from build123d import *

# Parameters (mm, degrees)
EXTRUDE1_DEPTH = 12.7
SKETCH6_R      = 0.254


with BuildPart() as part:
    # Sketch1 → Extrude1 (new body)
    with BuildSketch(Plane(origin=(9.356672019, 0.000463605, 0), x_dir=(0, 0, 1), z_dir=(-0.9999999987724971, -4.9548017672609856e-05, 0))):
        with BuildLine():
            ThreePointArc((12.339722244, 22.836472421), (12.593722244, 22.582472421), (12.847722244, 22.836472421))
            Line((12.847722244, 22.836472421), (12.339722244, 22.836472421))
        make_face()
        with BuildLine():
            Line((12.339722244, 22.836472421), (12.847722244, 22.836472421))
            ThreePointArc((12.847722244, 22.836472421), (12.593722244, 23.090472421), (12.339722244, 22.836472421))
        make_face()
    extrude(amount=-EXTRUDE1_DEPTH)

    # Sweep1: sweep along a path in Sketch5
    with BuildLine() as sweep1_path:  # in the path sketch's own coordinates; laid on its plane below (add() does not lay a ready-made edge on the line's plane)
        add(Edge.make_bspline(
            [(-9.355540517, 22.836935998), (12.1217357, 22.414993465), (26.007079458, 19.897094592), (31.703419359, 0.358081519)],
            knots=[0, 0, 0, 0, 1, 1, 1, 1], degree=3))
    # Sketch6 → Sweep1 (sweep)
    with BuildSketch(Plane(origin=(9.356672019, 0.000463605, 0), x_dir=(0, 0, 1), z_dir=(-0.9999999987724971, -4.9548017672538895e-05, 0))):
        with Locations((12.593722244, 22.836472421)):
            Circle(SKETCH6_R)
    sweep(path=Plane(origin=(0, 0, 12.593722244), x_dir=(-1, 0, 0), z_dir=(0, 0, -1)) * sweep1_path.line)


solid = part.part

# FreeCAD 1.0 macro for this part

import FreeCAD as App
import Part
import Sketcher
Q = App.Units.Quantity

doc = App.newDocument("Part")
params = doc.addObject("Spreadsheet::Sheet", "Params")
for row, (alias, value) in enumerate([
    ("sketch1_diameter", "0.02 in"),
    ("pad1_length", "0.5 in"),
    ("sketch2_diameter", "0.02 in"),
], start=1):
    params.set(f"A{row}", alias)
    params.set(f"B{row}", "=" + value)
    params.setAlias(f"B{row}", alias)

body = doc.addObject("PartDesign::Body", "Body")

# Sketch on YZ plane
sketch1 = body.newObject("Sketcher::SketchObject", "Sketch")
sketch1.AttachmentSupport = (doc.getObject("YZ_Plane"), [""])
sketch1.MapMode = "FlatFace"
sketch1.AttachmentOffset = App.Placement(App.Vector(0, 0, 9.356672), App.Rotation())
sketch1.addGeometry(Part.Circle(App.Vector(22.84, 12.59, 0), App.Vector(0, 0, 1), 0.25), False)
sketch1.addConstraint(Sketcher.Constraint("Diameter", 0, Q("0.02 in")))
sketch1.addConstraint(Sketcher.Constraint("DistanceX", -1, 1, 0, 3, Q("22.836936 mm")))
sketch1.addConstraint(Sketcher.Constraint("DistanceY", -1, 1, 0, 3, Q("12.593722 mm")))
sketch1.setExpression("Constraints[0]", "Params.sketch1_diameter")
pad1 = body.newObject("PartDesign::Pad", "Pad")
pad1.Profile = sketch1
pad1.setExpression("Length", "Params.pad1_length")

# Sketch on YZ plane
sketch2 = body.newObject("Sketcher::SketchObject", "Sketch001")
sketch2.AttachmentSupport = (doc.getObject("YZ_Plane"), [""])
sketch2.MapMode = "FlatFace"
sketch2.AttachmentOffset = App.Placement(App.Vector(0, 0, 9.356672), App.Rotation())
sketch2.addGeometry(Part.Circle(App.Vector(22.84, 12.59, 0), App.Vector(0, 0, 1), 0.25), False)
sketch2.addConstraint(Sketcher.Constraint("Diameter", 0, Q("0.02 in")))
sketch2.addConstraint(Sketcher.Constraint("DistanceX", -1, 1, 0, 3, Q("22.836936 mm")))
sketch2.addConstraint(Sketcher.Constraint("DistanceY", -1, 1, 0, 3, Q("12.593722 mm")))
sketch2.setExpression("Constraints[0]", "Params.sketch2_diameter")

# Sketch on XY plane
sketch3 = body.newObject("Sketcher::SketchObject", "Sketch002")
sketch3.AttachmentSupport = (doc.getObject("XY_Plane"), [""])
sketch3.MapMode = "FlatFace"
sketch3.AttachmentOffset = App.Placement(App.Vector(0, 0, 12.593722), App.Rotation())
sketch3.addGeometry(Part.BSplineCurve([App.Vector(9.355541, 22.836936, 0), App.Vector(-12.121736, 22.414993, 0), App.Vector(-26.007079, 19.897095, 0), App.Vector(-31.703419, 0.358082, 0)], [4, 4], [0, 1], False, 3, [1, 1, 1, 1], False), False)
sketch3.addConstraint(Sketcher.Constraint("Block", 0))
doc.recompute()

additivepipe = body.newObject("PartDesign::AdditivePipe", "AdditivePipe")
additivepipe.Profile = sketch2
additivepipe.Spine = (sketch3, ["Edge1"])

doc.recompute()
